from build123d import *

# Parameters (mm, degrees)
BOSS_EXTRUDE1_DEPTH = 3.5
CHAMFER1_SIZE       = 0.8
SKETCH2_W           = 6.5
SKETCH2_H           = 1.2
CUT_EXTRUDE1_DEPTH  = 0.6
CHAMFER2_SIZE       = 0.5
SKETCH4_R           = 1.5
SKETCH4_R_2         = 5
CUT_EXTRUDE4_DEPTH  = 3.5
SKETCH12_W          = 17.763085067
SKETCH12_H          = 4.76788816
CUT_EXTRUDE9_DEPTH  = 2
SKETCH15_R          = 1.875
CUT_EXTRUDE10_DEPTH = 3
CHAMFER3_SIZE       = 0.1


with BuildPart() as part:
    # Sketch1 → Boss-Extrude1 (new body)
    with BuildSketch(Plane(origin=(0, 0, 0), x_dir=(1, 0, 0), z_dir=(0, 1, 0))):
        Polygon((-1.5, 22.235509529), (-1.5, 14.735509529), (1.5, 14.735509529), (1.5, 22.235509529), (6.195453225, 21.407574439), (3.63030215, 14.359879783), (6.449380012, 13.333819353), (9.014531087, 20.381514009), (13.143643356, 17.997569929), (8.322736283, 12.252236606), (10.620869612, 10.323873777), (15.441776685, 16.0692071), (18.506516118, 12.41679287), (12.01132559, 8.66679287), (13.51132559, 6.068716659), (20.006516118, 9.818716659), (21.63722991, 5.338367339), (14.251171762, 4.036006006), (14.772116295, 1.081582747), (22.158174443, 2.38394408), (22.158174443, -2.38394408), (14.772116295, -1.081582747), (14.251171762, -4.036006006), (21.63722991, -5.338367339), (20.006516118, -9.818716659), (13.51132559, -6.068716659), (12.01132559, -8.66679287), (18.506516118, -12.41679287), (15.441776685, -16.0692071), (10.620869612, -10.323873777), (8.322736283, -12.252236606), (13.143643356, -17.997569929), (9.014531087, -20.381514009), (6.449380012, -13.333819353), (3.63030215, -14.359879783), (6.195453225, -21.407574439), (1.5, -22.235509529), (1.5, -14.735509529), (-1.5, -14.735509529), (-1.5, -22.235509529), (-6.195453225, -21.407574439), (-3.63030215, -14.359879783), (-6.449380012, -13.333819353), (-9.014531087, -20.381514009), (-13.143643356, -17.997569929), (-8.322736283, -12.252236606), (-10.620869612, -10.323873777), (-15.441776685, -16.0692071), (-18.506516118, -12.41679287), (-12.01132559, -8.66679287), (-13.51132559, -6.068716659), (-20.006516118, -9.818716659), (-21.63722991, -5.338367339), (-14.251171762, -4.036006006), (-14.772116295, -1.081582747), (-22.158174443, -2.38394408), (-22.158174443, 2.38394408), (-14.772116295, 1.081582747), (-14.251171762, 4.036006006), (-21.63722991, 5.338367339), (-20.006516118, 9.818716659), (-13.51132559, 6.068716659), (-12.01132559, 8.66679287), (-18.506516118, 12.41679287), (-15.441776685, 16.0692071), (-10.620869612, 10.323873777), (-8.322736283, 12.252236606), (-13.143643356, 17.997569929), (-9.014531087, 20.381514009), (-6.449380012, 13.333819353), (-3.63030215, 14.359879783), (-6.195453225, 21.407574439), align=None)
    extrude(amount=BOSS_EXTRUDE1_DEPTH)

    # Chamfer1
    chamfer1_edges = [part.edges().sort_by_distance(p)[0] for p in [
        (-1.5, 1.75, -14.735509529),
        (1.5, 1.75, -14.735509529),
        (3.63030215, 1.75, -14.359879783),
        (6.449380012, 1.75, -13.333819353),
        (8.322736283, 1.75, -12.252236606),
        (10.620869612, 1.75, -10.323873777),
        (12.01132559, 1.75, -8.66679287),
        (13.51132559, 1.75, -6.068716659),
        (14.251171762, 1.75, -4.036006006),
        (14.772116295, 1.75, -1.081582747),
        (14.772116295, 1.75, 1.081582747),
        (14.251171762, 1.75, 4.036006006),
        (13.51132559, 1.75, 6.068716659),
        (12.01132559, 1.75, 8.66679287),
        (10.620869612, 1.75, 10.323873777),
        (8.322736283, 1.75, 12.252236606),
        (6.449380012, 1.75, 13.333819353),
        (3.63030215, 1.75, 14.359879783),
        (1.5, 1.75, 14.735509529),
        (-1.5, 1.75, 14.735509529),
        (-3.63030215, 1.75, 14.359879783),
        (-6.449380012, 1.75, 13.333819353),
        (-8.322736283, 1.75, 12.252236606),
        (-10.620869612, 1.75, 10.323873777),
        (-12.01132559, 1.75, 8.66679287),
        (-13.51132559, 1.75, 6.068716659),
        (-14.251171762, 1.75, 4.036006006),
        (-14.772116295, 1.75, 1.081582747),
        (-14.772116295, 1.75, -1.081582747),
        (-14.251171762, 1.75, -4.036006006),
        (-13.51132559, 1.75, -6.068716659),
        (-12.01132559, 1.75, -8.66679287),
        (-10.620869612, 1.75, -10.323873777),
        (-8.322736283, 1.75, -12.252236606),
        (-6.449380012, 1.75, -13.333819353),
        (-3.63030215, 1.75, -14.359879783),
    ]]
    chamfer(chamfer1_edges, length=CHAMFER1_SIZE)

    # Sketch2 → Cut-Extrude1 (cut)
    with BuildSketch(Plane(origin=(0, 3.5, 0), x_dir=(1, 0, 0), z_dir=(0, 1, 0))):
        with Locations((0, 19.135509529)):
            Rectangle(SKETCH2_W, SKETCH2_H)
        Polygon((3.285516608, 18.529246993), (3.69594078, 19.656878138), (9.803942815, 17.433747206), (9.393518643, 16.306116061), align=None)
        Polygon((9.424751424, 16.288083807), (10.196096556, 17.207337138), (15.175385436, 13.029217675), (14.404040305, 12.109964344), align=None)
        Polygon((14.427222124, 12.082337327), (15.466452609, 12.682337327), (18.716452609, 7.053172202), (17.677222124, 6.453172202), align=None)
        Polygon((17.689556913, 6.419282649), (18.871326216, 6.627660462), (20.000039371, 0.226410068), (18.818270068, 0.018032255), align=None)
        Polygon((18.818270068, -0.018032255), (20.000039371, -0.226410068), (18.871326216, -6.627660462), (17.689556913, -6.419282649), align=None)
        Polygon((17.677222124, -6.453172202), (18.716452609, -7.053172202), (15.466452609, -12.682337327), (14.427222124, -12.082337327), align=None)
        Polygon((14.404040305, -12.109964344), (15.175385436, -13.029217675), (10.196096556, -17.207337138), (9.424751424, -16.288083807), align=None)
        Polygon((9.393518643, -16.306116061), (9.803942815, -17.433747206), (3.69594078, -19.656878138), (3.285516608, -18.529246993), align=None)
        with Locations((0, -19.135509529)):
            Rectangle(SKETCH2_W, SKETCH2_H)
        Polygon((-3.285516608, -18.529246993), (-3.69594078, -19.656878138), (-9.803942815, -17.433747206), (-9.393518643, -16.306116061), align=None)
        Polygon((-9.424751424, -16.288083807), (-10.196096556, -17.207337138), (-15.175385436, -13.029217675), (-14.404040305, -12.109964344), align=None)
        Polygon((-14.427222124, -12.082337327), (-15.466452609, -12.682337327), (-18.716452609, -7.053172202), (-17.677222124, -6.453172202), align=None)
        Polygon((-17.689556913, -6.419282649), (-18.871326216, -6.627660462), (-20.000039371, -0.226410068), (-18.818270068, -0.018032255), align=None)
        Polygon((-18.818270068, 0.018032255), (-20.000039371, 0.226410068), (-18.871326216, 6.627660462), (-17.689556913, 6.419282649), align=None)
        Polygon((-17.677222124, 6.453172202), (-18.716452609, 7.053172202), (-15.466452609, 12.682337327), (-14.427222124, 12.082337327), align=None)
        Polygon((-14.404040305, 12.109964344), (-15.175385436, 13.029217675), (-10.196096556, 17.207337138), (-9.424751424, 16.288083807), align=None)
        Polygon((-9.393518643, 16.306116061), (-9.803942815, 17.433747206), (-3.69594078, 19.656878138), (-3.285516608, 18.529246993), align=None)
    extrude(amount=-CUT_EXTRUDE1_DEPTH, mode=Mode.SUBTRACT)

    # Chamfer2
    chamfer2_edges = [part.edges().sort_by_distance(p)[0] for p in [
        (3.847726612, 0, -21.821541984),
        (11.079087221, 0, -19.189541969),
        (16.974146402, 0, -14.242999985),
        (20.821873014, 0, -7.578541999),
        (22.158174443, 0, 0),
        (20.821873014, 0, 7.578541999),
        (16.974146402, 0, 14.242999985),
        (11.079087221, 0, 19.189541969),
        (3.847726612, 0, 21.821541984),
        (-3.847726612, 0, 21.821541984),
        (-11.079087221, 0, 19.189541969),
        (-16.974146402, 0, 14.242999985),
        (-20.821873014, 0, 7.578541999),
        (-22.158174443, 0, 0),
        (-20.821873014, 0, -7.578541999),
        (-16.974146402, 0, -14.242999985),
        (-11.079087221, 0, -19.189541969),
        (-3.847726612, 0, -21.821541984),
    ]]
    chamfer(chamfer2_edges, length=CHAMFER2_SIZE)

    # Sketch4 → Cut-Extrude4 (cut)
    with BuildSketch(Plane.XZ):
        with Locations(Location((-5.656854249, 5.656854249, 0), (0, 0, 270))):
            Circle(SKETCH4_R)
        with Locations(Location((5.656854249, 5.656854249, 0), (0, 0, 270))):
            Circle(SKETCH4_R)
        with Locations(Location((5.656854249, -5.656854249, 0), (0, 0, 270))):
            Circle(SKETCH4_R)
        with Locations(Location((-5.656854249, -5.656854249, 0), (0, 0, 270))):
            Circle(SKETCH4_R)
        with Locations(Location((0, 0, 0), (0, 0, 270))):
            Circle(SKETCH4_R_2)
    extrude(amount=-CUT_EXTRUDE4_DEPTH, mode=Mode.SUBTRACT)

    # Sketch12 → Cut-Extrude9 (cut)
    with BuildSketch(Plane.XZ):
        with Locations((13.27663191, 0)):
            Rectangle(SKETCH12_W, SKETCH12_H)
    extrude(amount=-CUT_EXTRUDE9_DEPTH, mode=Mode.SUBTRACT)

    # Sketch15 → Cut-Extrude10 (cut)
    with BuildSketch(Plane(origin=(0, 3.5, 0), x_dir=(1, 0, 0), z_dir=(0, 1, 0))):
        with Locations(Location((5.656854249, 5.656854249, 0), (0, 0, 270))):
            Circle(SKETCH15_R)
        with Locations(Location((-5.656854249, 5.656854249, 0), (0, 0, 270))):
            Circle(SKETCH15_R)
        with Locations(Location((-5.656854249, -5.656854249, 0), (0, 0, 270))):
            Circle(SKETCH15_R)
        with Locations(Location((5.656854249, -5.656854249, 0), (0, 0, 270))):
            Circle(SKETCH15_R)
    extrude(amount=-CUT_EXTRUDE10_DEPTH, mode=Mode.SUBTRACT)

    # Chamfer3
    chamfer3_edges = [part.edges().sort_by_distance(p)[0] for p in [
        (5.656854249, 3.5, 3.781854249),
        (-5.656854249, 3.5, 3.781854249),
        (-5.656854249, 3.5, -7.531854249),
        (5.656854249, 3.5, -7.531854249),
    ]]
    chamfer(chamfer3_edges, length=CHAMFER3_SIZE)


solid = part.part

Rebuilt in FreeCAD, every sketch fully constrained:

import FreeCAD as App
import Part
import Sketcher

V = App.Vector
Q = App.Units.Quantity


def edges_at(feature, points):
    """Names of the edges that pass closest to the given points."""
    edges = feature.Shape.Edges
    near = lambda p: min(range(len(edges)), key=lambda i: edges[i].distToShape(Part.Vertex(*p))[0])
    return sorted({f"Edge{near(p) + 1}" for p in points})


def add_polygon(sketch, points):
    """Adds a closed chain of lines whose ends are joined by coincident constraints."""
    first, n = sketch.GeometryCount, len(points)
    for a, b in zip(points, points[1:] + points[:1]):
        sketch.addGeometry(Part.LineSegment(App.Vector(*a, 0), App.Vector(*b, 0)), False)
    for i in range(n):
        sketch.addConstraint(Sketcher.Constraint("Coincident", first + i, 2, first + (i + 1) % n, 1))

doc = App.newDocument("Part")
body = doc.addObject("PartDesign::Body", "Body")

sketch1 = body.newObject("Sketcher::SketchObject", "Sketch")
sketch1.AttachmentSupport = (doc.getObject("XZ_Plane"), [""])
sketch1.MapMode = "FlatFace"
add_polygon(sketch1, [(-1.5, -14.7), (-1.5, -22.2), (-6.2, -21.4), (-3.6, -14.4), (-6.4, -13.3), (-9, -20.4), (-13.1, -18), (-8.3, -12.3), (-10.6, -10.3), (-15.4, -16.1), (-18.5, -12.4), (-12, -8.7), (-13.5, -6.1), (-20, -9.8), (-21.6, -5.3), (-14.3, -4), (-14.8, -1.1), (-22.2, -2.4), (-22.2, 2.4), (-14.8, 1.1), (-14.3, 4), (-21.6, 5.3), (-20, 9.8), (-13.5, 6.1), (-12, 8.7), (-18.5, 12.4), (-15.4, 16.1), (-10.6, 10.3), (-8.3, 12.3), (-13.1, 18), (-9, 20.4), (-6.4, 13.3), (-3.6, 14.4), (-6.2, 21.4), (-1.5, 22.2), (-1.5, 14.7), (1.5, 14.7), (1.5, 22.2), (6.2, 21.4), (3.6, 14.4), (6.4, 13.3), (9, 20.4), (13.1, 18), (8.3, 12.3), (10.6, 10.3), (15.4, 16.1), (18.5, 12.4), (12, 8.7), (13.5, 6.1), (20, 9.8), (21.6, 5.3), (14.3, 4), (14.8, 1.1), (22.2, 2.4), (22.2, -2.4), (14.8, -1.1), (14.3, -4), (21.6, -5.3), (20, -9.8), (13.5, -6.1), (12, -8.7), (18.5, -12.4), (15.4, -16.1), (10.6, -10.3), (8.3, -12.3), (13.1, -18), (9, -20.4), (6.4, -13.3), (3.6, -14.4), (6.2, -21.4), (1.5, -22.2), (1.5, -14.7)])
sketch1.addConstraint([
    Sketcher.Constraint("Vertical", 0),
    Sketcher.Constraint("Vertical", 17),
    Sketcher.Constraint("Vertical", 34),
    Sketcher.Constraint("Horizontal", 35),
    Sketcher.Constraint("Vertical", 36),
    Sketcher.Constraint("Vertical", 53),
    Sketcher.Constraint("Vertical", 70),
    Sketcher.Constraint("Horizontal", 71),
    Sketcher.Constraint("Symmetric", 0, 2, 36, 2, -1, 1),
    Sketcher.Constraint("Symmetric", 1, 2, 37, 2, -1, 1),
    Sketcher.Constraint("Symmetric", 2, 2, 38, 2, -1, 1),
    Sketcher.Constraint("Symmetric", 3, 2, 39, 2, -1, 1),
    Sketcher.Constraint("Symmetric", 4, 2, 40, 2, -1, 1),
    Sketcher.Constraint("Symmetric", 5, 2, 41, 2, -1, 1),
    Sketcher.Constraint("Symmetric", 6, 2, 42, 2, -1, 1),
    Sketcher.Constraint("Symmetric", 7, 2, 43, 2, -1, 1),
    Sketcher.Constraint("Symmetric", 8, 2, 44, 2, -1, 1),
    Sketcher.Constraint("Symmetric", 9, 2, 45, 2, -1, 1),
    Sketcher.Constraint("Symmetric", 10, 2, 46, 2, -1, 1),
    Sketcher.Constraint("Symmetric", 11, 2, 47, 2, -1, 1),
    Sketcher.Constraint("Symmetric", 12, 2, 48, 2, -1, 1),
    Sketcher.Constraint("Symmetric", 13, 2, 49, 2, -1, 1),
    Sketcher.Constraint("Symmetric", 14, 2, 50, 2, -1, 1),
    Sketcher.Constraint("Symmetric", 15, 2, 51, 2, -1, 1),
    Sketcher.Constraint("Symmetric", 16, 2, 52, 2, -1, 1),
    Sketcher.Constraint("Symmetric", 18, 2, 54, 2, -1, 1),
    Sketcher.Constraint("Symmetric", 19, 2, 55, 2, -1, 1),
    Sketcher.Constraint("Symmetric", 20, 2, 56, 2, -1, 1),
    Sketcher.Constraint("Symmetric", 21, 2, 57, 2, -1, 1),
    Sketcher.Constraint("Symmetric", 22, 2, 58, 2, -1, 1),
    Sketcher.Constraint("Symmetric", 23, 2, 59, 2, -1, 1),
    Sketcher.Constraint("Symmetric", 24, 2, 60, 2, -1, 1),
    Sketcher.Constraint("Symmetric", 25, 2, 61, 2, -1, 1),
    Sketcher.Constraint("Symmetric", 26, 2, 62, 2, -1, 1),
    Sketcher.Constraint("Symmetric", 27, 2, 63, 2, -1, 1),
    Sketcher.Constraint("Symmetric", 28, 2, 64, 2, -1, 1),
    Sketcher.Constraint("Symmetric", 29, 2, 65, 2, -1, 1),
    Sketcher.Constraint("Symmetric", 30, 2, 66, 2, -1, 1),
    Sketcher.Constraint("Symmetric", 31, 2, 67, 2, -1, 1),
    Sketcher.Constraint("Symmetric", 32, 2, 68, 2, -1, 1),
    Sketcher.Constraint("Symmetric", 33, 2, 69, 2, -1, 1),
    Sketcher.Constraint("Symmetric", 33, 2, 36, 2, -2),
    Sketcher.Constraint("Symmetric", 32, 2, 37, 2, -2),
    Sketcher.Constraint("Symmetric", 31, 2, 38, 2, -2),
    Sketcher.Constraint("Symmetric", 30, 2, 39, 2, -2),
    Sketcher.Constraint("Symmetric", 29, 2, 40, 2, -2),
    Sketcher.Constraint("Symmetric", 28, 2, 41, 2, -2),
    Sketcher.Constraint("Symmetric", 27, 2, 42, 2, -2),
    Sketcher.Constraint("Symmetric", 26, 2, 43, 2, -2),
    Sketcher.Constraint("Symmetric", 25, 2, 44, 2, -2),
    Sketcher.Constraint("Symmetric", 24, 2, 45, 2, -2),
    Sketcher.Constraint("Symmetric", 23, 2, 46, 2, -2),
    Sketcher.Constraint("Symmetric", 22, 2, 47, 2, -2),
    Sketcher.Constraint("Symmetric", 21, 2, 48, 2, -2),
    Sketcher.Constraint("Symmetric", 20, 2, 49, 2, -2),
    Sketcher.Constraint("Symmetric", 19, 2, 50, 2, -2),
    Sketcher.Constraint("Symmetric", 18, 2, 51, 2, -2),
    Sketcher.Constraint("Perpendicular", 2, 3),
    Sketcher.Constraint("Perpendicular", 3, 4),
    Sketcher.Constraint("Perpendicular", 6, 7),
    Sketcher.Constraint("Perpendicular", 7, 8),
    Sketcher.Constraint("Perpendicular", 10, 11),
    Sketcher.Constraint("Perpendicular", 11, 12),
    Sketcher.Constraint("Perpendicular", 14, 15),
    Sketcher.Constraint("Perpendicular", 15, 16),
    Sketcher.Constraint("Parallel", 1, 18),
    Sketcher.Constraint("Perpendicular", 18, 19),
    Sketcher.Constraint("Parallel", 4, 21),
    Sketcher.Constraint("Parallel", 5, 22),
    Sketcher.Constraint("Parallel", 8, 25),
    Sketcher.Constraint("Parallel", 37, 54),
    Sketcher.Constraint("Equal", 0, 34),
    Sketcher.Constraint("Equal", 2, 4),
    Sketcher.Constraint("Equal", 1, 5),
    Sketcher.Constraint("Equal", 4, 6),
    Sketcher.Constraint("Equal", 3, 7),
    Sketcher.Constraint("Equal", 6, 8),
    Sketcher.Constraint("Equal", 5, 9),
    Sketcher.Constraint("Equal", 8, 10),
    Sketcher.Constraint("Equal", 7, 11),
    Sketcher.Constraint("Equal", 10, 12),
    Sketcher.Constraint("Equal", 9, 13),
    Sketcher.Constraint("Equal", 12, 14),
    Sketcher.Constraint("Equal", 11, 15),
    Sketcher.Constraint("Equal", 14, 16),
    Sketcher.Constraint("DistanceX", 35, 1, 35, 2, 3.0),
    Sketcher.Constraint("Angle", 1, Q("170 deg")),
    Sketcher.Constraint("Angle", 2, Q("70 deg")),
    Sketcher.Constraint("Angle", 5, Q("150 deg")),
    Sketcher.Constraint("Angle", 6, Q("50 deg")),
    Sketcher.Constraint("Distance", 3, 3.0),
    Sketcher.Constraint("DistanceY", 0, 2, 0, 1, 7.5),
    Sketcher.Constraint("Distance", 2, 7.5),
    Sketcher.Constraint("DistanceY", 17, 1, 17, 2, 4.767888),
    Sketcher.Constraint("Distance", 1, 4.767888),
])
pad1 = body.newObject("PartDesign::Pad", "Pad")
pad1.Profile = sketch1
pad1.Length = 3.5
pad1.Reversed = True
doc.recompute()

chamfer = body.newObject("PartDesign::Chamfer", "Chamfer")
chamfer.Base = (pad1, edges_at(pad1, [
    (-1.5, 1.75, -14.736),
    (1.5, 1.75, -14.736),
    (3.63, 1.75, -14.36),
    (6.449, 1.75, -13.334),
    (8.323, 1.75, -12.252),
    (10.621, 1.75, -10.324),
    (12.011, 1.75, -8.667),
    (13.511, 1.75, -6.069),
    (14.251, 1.75, -4.036),
    (14.772, 1.75, -1.082),
    (14.772, 1.75, 1.082),
    (14.251, 1.75, 4.036),
    (13.511, 1.75, 6.069),
    (12.011, 1.75, 8.667),
    (10.621, 1.75, 10.324),
    (8.323, 1.75, 12.252),
    (6.449, 1.75, 13.334),
    (3.63, 1.75, 14.36),
    (1.5, 1.75, 14.736),
    (-1.5, 1.75, 14.736),
    (-3.63, 1.75, 14.36),
    (-6.449, 1.75, 13.334),
    (-8.323, 1.75, 12.252),
    (-10.621, 1.75, 10.324),
    (-12.011, 1.75, 8.667),
    (-13.511, 1.75, 6.069),
    (-14.251, 1.75, 4.036),
    (-14.772, 1.75, 1.082),
    (-14.772, 1.75, -1.082),
    (-14.251, 1.75, -4.036),
    (-13.511, 1.75, -6.069),
    (-12.011, 1.75, -8.667),
    (-10.621, 1.75, -10.324),
    (-8.323, 1.75, -12.252),
    (-6.449, 1.75, -13.334),
    (-3.63, 1.75, -14.36),
]))
chamfer.Size = 0.8

sketch2 = body.newObject("Sketcher::SketchObject", "Sketch001")
sketch2.AttachmentSupport = (doc.getObject("XZ_Plane"), [""])
sketch2.MapMode = "FlatFace"
sketch2.AttachmentOffset = App.Placement(V(0, 0, -3.5), App.Rotation())
add_polygon(sketch2, [(-3.2, -19.7), (-3.2, -18.5), (3.2, -18.5), (3.2, -19.7)])
add_polygon(sketch2, [(3.7, -19.7), (3.3, -18.5), (9.4, -16.3), (9.8, -17.4)])
add_polygon(sketch2, [(10.2, -17.2), (9.4, -16.3), (14.4, -12.1), (15.2, -13)])
add_polygon(sketch2, [(15.5, -12.7), (14.4, -12.1), (17.7, -6.5), (18.7, -7.1)])
add_polygon(sketch2, [(18.9, -6.6), (17.7, -6.4), (18.8, 0), (20, -0.2)])
add_polygon(sketch2, [(20, 0.2), (18.8, 0), (17.7, 6.4), (18.9, 6.6)])
add_polygon(sketch2, [(18.7, 7.1), (17.7, 6.5), (14.4, 12.1), (15.5, 12.7)])
add_polygon(sketch2, [(15.2, 13), (14.4, 12.1), (9.4, 16.3), (10.2, 17.2)])
add_polygon(sketch2, [(9.8, 17.4), (9.4, 16.3), (3.3, 18.5), (3.7, 19.7)])
add_polygon(sketch2, [(-3.2, 18.5), (-3.2, 19.7), (3.2, 19.7), (3.2, 18.5)])
add_polygon(sketch2, [(-3.7, 19.7), (-3.3, 18.5), (-9.4, 16.3), (-9.8, 17.4)])
add_polygon(sketch2, [(-10.2, 17.2), (-9.4, 16.3), (-14.4, 12.1), (-15.2, 13)])
add_polygon(sketch2, [(-15.5, 12.7), (-14.4, 12.1), (-17.7, 6.5), (-18.7, 7.1)])
add_polygon(sketch2, [(-18.9, 6.6), (-17.7, 6.4), (-18.8, 0), (-20, 0.2)])
add_polygon(sketch2, [(-20, -0.2), (-18.8, 0), (-17.7, -6.4), (-18.9, -6.6)])
add_polygon(sketch2, [(-18.7, -7.1), (-17.7, -6.5), (-14.4, -12.1), (-15.5, -12.7)])
add_polygon(sketch2, [(-15.2, -13), (-14.4, -12.1), (-9.4, -16.3), (-10.2, -17.2)])
add_polygon(sketch2, [(-9.8, -17.4), (-9.4, -16.3), (-3.3, -18.5), (-3.7, -19.7)])
sketch2.addConstraint([
    Sketcher.Constraint("Vertical", 0),
    Sketcher.Constraint("Horizontal", 1),
    Sketcher.Constraint("Vertical", 2),
    Sketcher.Constraint("Horizontal", 3),
    Sketcher.Constraint("Vertical", 36),
    Sketcher.Constraint("Horizontal", 37),
    Sketcher.Constraint("Vertical", 38),
    Sketcher.Constraint("Horizontal", 39),
    Sketcher.Constraint("Symmetric", 2, 2, 36, 2, -1, 1),
    Sketcher.Constraint("Symmetric", 0, 2, 38, 2, -1, 1),
    Sketcher.Constraint("Symmetric", 4, 2, 40, 2, -1, 1),
    Sketcher.Constraint("Symmetric", 5, 2, 41, 2, -1, 1),
    Sketcher.Constraint("Symmetric", 6, 2, 42, 2, -1, 1),
    Sketcher.Constraint("Symmetric", 7, 2, 43, 2, -1, 1),
    Sketcher.Constraint("Symmetric", 8, 2, 44, 2, -1, 1),
    Sketcher.Constraint("Symmetric", 9, 2, 45, 2, -1, 1),
    Sketcher.Constraint("Symmetric", 10, 2, 46, 2, -1, 1),
    Sketcher.Constraint("Symmetric", 11, 2, 47, 2, -1, 1),
    Sketcher.Constraint("Symmetric", 12, 2, 48, 2, -1, 1),
    Sketcher.Constraint("Symmetric", 13, 2, 49, 2, -1, 1),
    Sketcher.Constraint("Symmetric", 14, 2, 50, 2, -1, 1),
    Sketcher.Constraint("Symmetric", 15, 2, 51, 2, -1, 1),
    Sketcher.Constraint("Symmetric", 16, 2, 52, 2, -1, 1),
    Sketcher.Constraint("Symmetric", 17, 2, 53, 2, -1, 1),
    Sketcher.Constraint("Symmetric", 18, 2, 54, 2, -1, 1),
    Sketcher.Constraint("Symmetric", 19, 2, 55, 2, -1, 1),
    Sketcher.Constraint("Symmetric", 20, 2, 56, 2, -1, 1),
    Sketcher.Constraint("Symmetric", 21, 2, 57, 2, -1, 1),
    Sketcher.Constraint("Symmetric", 22, 2, 58, 2, -1, 1),
    Sketcher.Constraint("Symmetric", 23, 2, 59, 2, -1, 1),
    Sketcher.Constraint("Symmetric", 24, 2, 60, 2, -1, 1),
    Sketcher.Constraint("Symmetric", 25, 2, 61, 2, -1, 1),
    Sketcher.Constraint("Symmetric", 26, 2, 62, 2, -1, 1),
    Sketcher.Constraint("Symmetric", 27, 2, 63, 2, -1, 1),
    Sketcher.Constraint("Symmetric", 28, 2, 64, 2, -1, 1),
    Sketcher.Constraint("Symmetric", 29, 2, 65, 2, -1, 1),
    Sketcher.Constraint("Symmetric", 30, 2, 66, 2, -1, 1),
    Sketcher.Constraint("Symmetric", 31, 2, 67, 2, -1, 1),
    Sketcher.Constraint("Symmetric", 32, 2, 68, 2, -1, 1),
    Sketcher.Constraint("Symmetric", 33, 2, 69, 2, -1, 1),
    Sketcher.Constraint("Symmetric", 34, 2, 70, 2, -1, 1),
    Sketcher.Constraint("Symmetric", 35, 2, 71, 2, -1, 1),
    Sketcher.Constraint("Symmetric", 33, 2, 40, 2, -2),
    Sketcher.Constraint("Symmetric", 32, 2, 41, 2, -2),
    Sketcher.Constraint("Symmetric", 35, 2, 42, 2, -2),
    Sketcher.Constraint("Symmetric", 34, 2, 43, 2, -2),
    Sketcher.Constraint("Symmetric", 29, 2, 44, 2, -2),
    Sketcher.Constraint("Symmetric", 28, 2, 45, 2, -2),
    Sketcher.Constraint("Symmetric", 31, 2, 46, 2, -2),
    Sketcher.Constraint("Symmetric", 30, 2, 47, 2, -2),
    Sketcher.Constraint("Symmetric", 25, 2, 48, 2, -2),
    Sketcher.Constraint("Symmetric", 24, 2, 49, 2, -2),
    Sketcher.Constraint("Symmetric", 27, 2, 50, 2, -2),
    Sketcher.Constraint("Symmetric", 26, 2, 51, 2, -2),
    Sketcher.Constraint("Symmetric", 21, 2, 52, 2, -2),
    Sketcher.Constraint("Symmetric", 20, 2, 53, 2, -2),
    Sketcher.Constraint("Symmetric", 23, 2, 54, 2, -2),
    Sketcher.Constraint("Symmetric", 22, 2, 55, 2, -2),
    Sketcher.Constraint("Perpendicular", 4, 5),
    Sketcher.Constraint("Perpendicular", 5, 6),
    Sketcher.Constraint("Perpendicular", 6, 7),
    Sketcher.Constraint("Perpendicular", 8, 9),
    Sketcher.Constraint("Perpendicular", 9, 10),
    Sketcher.Constraint("Perpendicular", 10, 11),
    Sketcher.Constraint("Perpendicular", 12, 13),
    Sketcher.Constraint("Perpendicular", 13, 14),
    Sketcher.Constraint("Perpendicular", 14, 15),
    Sketcher.Constraint("Perpendicular", 16, 17),
    Sketcher.Constraint("Perpendicular", 17, 18),
    Sketcher.Constraint("Perpendicular", 18, 19),
    Sketcher.Constraint("Vertical", 3, 2, 36, 2),
    Sketcher.Constraint("Equal", 6, 8),
    Sketcher.Constraint("Equal", 7, 9),
    Sketcher.Constraint("Equal", 10, 12),
    Sketcher.Constraint("Equal", 11, 13),
    Sketcher.Constraint("Equal", 14, 16),
    Sketcher.Constraint("Equal", 15, 17),
    Sketcher.Constraint("Angle", 4, Q("110 deg")),
    Sketcher.Constraint("Angle", 8, Q("130 deg")),
    Sketcher.Constraint("Angle", 12, Q("150 deg")),
    Sketcher.Constraint("Angle", 16, Q("170 deg")),
    Sketcher.Constraint("DistanceX", 1, 1, 1, 2, 6.5),
    Sketcher.Constraint("DistanceY", 0, 1, 0, 2, 1.2),
    Sketcher.Constraint("Distance", 4, 1.2),
    Sketcher.Constraint("Distance", 5, 6.5),
    Sketcher.Constraint("DistanceY", 0, 2, -1, 1, 18.53551),
    Sketcher.Constraint("DistanceX", -1, 1, 5, 2, 9.393519),
    Sketcher.Constraint("DistanceY", 7, 2, -1, 1, 19.656878),
    Sketcher.Constraint("DistanceX", -1, 1, 8, 2, 9.424751),
    Sketcher.Constraint("DistanceX", -1, 1, 17, 2, 18.81827),
    Sketcher.Constraint("DistanceY", 18, 2, -1, 1, 0.22641),
    Sketcher.Constraint("DistanceY", 8, 2, -1, 1, 16.288084),
    Sketcher.Constraint("DistanceX", -1, 1, 12, 2, 14.427222),
    Sketcher.Constraint("DistanceY", 12, 2, -1, 1, 12.082337),
])
pocket1 = body.newObject("PartDesign::Pocket", "Pocket")
pocket1.Profile = sketch2
pocket1.Length = 0.6
pocket1.Reversed = True
doc.recompute()

chamfer2 = body.newObject("PartDesign::Chamfer", "Chamfer001")
chamfer2.Base = (pocket1, edges_at(pocket1, [
    (3.848, 0, -21.822),
    (11.079, 0, -19.19),
    (16.974, 0, -14.243),
    (20.822, 0, -7.579),
    (22.158, 0, 0),
    (20.822, 0, 7.579),
    (16.974, 0, 14.243),
    (11.079, 0, 19.19),
    (3.848, 0, 21.822),
    (-3.848, 0, 21.822),
    (-11.079, 0, 19.19),
    (-16.974, 0, 14.243),
    (-20.822, 0, 7.579),
    (-22.158, 0, 0),
    (-20.822, 0, -7.579),
    (-16.974, 0, -14.243),
    (-11.079, 0, -19.19),
    (-3.848, 0, -21.822),
]))
chamfer2.Size = 0.5

sketch3 = body.newObject("Sketcher::SketchObject", "Sketch002")
sketch3.AttachmentSupport = (doc.getObject("XZ_Plane"), [""])
sketch3.MapMode = "FlatFace"
sketch3.addGeometry([
    Part.Circle(V(-5.7, 5.7, 0), V(0, 0, 1), 1.5),
    Part.Circle(V(5.7, 5.7, 0), V(0, 0, 1), 1.5),
    Part.Circle(V(5.7, -5.7, 0), V(0, 0, 1), 1.5),
    Part.Circle(V(-5.7, -5.7, 0), V(0, 0, 1), 1.5),
    Part.Circle(V(0, 0, 0), V(0, 0, 1), 5),
], False)
sketch3.addConstraint([
    Sketcher.Constraint("Coincident", 4, 3, -1, 1),
    Sketcher.Constraint("Equal", 0, 1),
    Sketcher.Constraint("Equal", 1, 2),
    Sketcher.Constraint("Equal", 2, 3),
    Sketcher.Constraint("Symmetric", 0, 3, 2, 3, -1, 1),
    Sketcher.Constraint("Symmetric", 1, 3, 3, 3, -1, 1),
    Sketcher.Constraint("Symmetric", 0, 3, 1, 3, -2),
    Sketcher.Constraint("Diameter", 0, 3.0),
    Sketcher.Constraint("Diameter", 4, 10.0),
    Sketcher.Constraint("DistanceX", 0, 3, 1, 3, 11.313708),
    Sketcher.Constraint("DistanceY", 2, 3, 1, 3, 11.313708),
])
pocket2 = body.newObject("PartDesign::Pocket", "Pocket001")
pocket2.Profile = sketch3
pocket2.Length = 3.5

sketch4 = body.newObject("Sketcher::SketchObject", "Sketch003")
sketch4.AttachmentSupport = (doc.getObject("XZ_Plane"), [""])
sketch4.MapMode = "FlatFace"
add_polygon(sketch4, [(4.4, 2.4), (4.4, -2.4), (22.2, -2.4), (22.2, 2.4)])
sketch4.addConstraint([
    Sketcher.Constraint("Vertical", 0),
    Sketcher.Constraint("Horizontal", 1),
    Sketcher.Constraint("Vertical", 2),
    Sketcher.Constraint("Horizontal", 3),
    Sketcher.Constraint("DistanceY", 0, 2, 0, 1, 4.767888),
    Sketcher.Constraint("DistanceX", 1, 1, 1, 2, 17.763085),
    Sketcher.Constraint("DistanceX", -1, 1, 0, 2, 4.395089),
    Sketcher.Constraint("DistanceY", 0, 2, -1, 1, 2.383944),
])
pocket3 = body.newObject("PartDesign::Pocket", "Pocket002")
pocket3.Profile = sketch4
pocket3.Length = 2

sketch5 = body.newObject("Sketcher::SketchObject", "Sketch004")
sketch5.AttachmentSupport = (doc.getObject("XZ_Plane"), [""])
sketch5.MapMode = "FlatFace"
sketch5.AttachmentOffset = App.Placement(V(0, 0, -3.5), App.Rotation())
sketch5.addGeometry([
    Part.Circle(V(5.7, -5.7, 0), V(0, 0, 1), 1.9),
    Part.Circle(V(-5.7, -5.7, 0), V(0, 0, 1), 1.9),
    Part.Circle(V(-5.7, 5.7, 0), V(0, 0, 1), 1.9),
    Part.Circle(V(5.7, 5.7, 0), V(0, 0, 1), 1.9),
], False)
sketch5.addConstraint([
    Sketcher.Constraint("Equal", 0, 1),
    Sketcher.Constraint("Equal", 1, 2),
    Sketcher.Constraint("Equal", 2, 3),
    Sketcher.Constraint("Symmetric", 0, 3, 2, 3, -1, 1),
    Sketcher.Constraint("Symmetric", 1, 3, 3, 3, -1, 1),
    Sketcher.Constraint("Symmetric", 0, 3, 1, 3, -2),
    Sketcher.Constraint("Diameter", 0, 3.75),
    Sketcher.Constraint("DistanceX", 1, 3, 0, 3, 11.313708),
    Sketcher.Constraint("DistanceY", 1, 3, 2, 3, 11.313708),
])
pocket4 = body.newObject("PartDesign::Pocket", "Pocket003")
pocket4.Profile = sketch5
pocket4.Length = 3
pocket4.Reversed = True
doc.recompute()

chamfer3 = body.newObject("PartDesign::Chamfer", "Chamfer002")
chamfer3.Base = (pocket4, edges_at(pocket4, [
    (5.657, 3.5, 3.782),
    (-5.657, 3.5, 3.782),
    (-5.657, 3.5, -7.532),
    (5.657, 3.5, -7.532),
]))
chamfer3.Size = 0.1

doc.recompute()
